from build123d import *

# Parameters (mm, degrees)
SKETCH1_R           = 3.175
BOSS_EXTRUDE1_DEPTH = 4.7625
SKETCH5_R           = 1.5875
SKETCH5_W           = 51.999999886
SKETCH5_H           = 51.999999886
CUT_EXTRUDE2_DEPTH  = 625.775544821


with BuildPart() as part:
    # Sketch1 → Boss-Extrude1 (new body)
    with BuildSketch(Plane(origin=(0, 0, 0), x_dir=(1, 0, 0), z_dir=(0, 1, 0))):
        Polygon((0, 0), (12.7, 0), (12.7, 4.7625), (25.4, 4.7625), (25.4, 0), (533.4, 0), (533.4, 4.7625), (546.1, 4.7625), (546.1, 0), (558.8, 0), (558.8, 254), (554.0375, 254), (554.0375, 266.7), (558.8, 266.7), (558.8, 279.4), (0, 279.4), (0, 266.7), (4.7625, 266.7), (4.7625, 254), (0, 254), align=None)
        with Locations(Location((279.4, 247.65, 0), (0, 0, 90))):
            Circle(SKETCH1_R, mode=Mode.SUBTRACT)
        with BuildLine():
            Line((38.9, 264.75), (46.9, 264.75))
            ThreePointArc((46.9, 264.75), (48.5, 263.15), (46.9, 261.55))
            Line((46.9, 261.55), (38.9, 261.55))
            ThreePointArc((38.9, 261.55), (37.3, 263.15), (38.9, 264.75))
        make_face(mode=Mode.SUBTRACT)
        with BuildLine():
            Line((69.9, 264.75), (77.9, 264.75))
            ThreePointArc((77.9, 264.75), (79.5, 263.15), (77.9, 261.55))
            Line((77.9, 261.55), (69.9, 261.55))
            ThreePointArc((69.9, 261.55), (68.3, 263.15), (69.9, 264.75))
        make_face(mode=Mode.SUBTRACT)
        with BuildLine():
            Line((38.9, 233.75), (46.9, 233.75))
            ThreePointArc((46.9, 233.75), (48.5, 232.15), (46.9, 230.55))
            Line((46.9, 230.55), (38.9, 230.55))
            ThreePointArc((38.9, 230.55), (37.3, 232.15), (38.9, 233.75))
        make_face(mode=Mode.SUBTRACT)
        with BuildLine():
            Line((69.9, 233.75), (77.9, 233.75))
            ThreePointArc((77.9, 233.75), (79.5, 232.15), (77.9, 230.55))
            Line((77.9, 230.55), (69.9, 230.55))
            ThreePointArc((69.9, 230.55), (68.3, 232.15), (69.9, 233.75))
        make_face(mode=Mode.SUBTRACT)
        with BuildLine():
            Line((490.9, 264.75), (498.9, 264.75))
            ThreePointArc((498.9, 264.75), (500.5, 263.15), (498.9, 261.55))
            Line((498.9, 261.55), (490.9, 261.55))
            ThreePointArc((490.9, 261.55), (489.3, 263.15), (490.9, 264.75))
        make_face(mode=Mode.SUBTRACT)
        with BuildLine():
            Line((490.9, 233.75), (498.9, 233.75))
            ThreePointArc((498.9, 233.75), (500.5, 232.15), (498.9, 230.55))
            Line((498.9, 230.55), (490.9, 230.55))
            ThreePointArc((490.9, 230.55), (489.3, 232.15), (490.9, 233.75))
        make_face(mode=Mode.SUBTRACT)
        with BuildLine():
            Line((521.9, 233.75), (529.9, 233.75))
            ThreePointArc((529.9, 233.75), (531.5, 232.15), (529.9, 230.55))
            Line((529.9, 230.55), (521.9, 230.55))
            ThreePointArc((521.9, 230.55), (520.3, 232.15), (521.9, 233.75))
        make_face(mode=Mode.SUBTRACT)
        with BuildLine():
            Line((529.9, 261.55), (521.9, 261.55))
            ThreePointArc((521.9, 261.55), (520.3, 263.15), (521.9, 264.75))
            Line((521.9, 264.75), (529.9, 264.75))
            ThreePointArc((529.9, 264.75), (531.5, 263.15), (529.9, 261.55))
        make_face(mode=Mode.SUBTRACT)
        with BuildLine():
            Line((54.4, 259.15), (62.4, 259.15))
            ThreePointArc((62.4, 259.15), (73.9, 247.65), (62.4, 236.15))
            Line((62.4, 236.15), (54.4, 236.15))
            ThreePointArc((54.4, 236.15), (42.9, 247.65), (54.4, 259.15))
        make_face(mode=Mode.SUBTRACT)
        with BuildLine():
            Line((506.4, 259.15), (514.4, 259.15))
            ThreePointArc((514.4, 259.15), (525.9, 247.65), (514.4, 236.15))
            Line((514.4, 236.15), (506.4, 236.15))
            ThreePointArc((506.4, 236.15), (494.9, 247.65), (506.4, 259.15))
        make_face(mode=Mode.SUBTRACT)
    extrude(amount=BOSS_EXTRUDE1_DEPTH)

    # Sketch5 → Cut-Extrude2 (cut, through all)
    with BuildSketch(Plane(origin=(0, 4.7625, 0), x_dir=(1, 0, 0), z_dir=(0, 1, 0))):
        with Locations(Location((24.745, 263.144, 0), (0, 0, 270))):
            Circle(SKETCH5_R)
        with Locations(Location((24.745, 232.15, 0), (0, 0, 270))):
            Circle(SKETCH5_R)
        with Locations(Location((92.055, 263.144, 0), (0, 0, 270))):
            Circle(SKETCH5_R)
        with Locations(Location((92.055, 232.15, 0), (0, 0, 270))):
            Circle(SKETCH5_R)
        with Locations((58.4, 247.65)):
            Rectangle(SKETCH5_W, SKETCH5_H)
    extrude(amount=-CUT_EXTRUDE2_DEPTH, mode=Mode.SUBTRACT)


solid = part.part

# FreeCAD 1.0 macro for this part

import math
import FreeCAD as App
import Part
import Sketcher

V = App.Vector
Q = App.Units.Quantity


def add_polygon(sketch, points):
    """Adds a closed chain of lines whose ends are joined by coincident constraints."""
    first, n = sketch.GeometryCount, len(points)
    for a, b in zip(points, points[1:] + points[:1]):
        sketch.addGeometry(Part.LineSegment(App.Vector(*a, 0), App.Vector(*b, 0)), False)
    for i in range(n):
        sketch.addConstraint(Sketcher.Constraint("Coincident", first + i, 2, first + (i + 1) % n, 1))

doc = App.newDocument("Part")
body = doc.addObject("PartDesign::Body", "Body")

# Sketch on XZ plane
sketch1 = doc.addObject("Sketcher::SketchObject", "Sketch")
body.addObject(sketch1)
sketch1.AttachmentSupport = (doc.XZ_Plane, [""])
sketch1.MapMode = "FlatFace"
add_polygon(sketch1, [(0, 0), (12.7, 0), (12.7, -4.7625), (25.4, -4.7625), (25.4, 0), (533.4, 0), (533.4, -4.7625), (546.1, -4.7625), (546.1, 0), (558.8, 0), (558.8, -254), (554.0375, -254), (554.0375, -266.7), (558.8, -266.7), (558.8, -279.4), (0, -279.4), (0, -266.7), (4.7625, -266.7), (4.7625, -254), (0, -254)])  # lines 0-19
sketch1.addGeometry(Part.ArcOfCircle(Part.Circle(V(38.9, -232.15, 0), V(0, 0, 1), 1.6), math.radians(90), math.radians(270)), False)  # 20
sketch1.addGeometry(Part.LineSegment(V(38.9, -233.75, 0), V(46.9, -233.75, 0)), False)  # 21
sketch1.addGeometry(Part.ArcOfCircle(Part.Circle(V(46.9, -232.15, 0), V(0, 0, 1), 1.6), math.radians(-90), math.radians(90)), False)  # 22
sketch1.addGeometry(Part.LineSegment(V(46.9, -230.55, 0), V(38.9, -230.55, 0)), False)  # 23
sketch1.addGeometry(Part.ArcOfCircle(Part.Circle(V(69.9, -232.15, 0), V(0, 0, 1), 1.6), math.radians(90), math.radians(270)), False)  # 24
sketch1.addGeometry(Part.LineSegment(V(69.9, -233.75, 0), V(77.9, -233.75, 0)), False)  # 25
sketch1.addGeometry(Part.ArcOfCircle(Part.Circle(V(77.9, -232.15, 0), V(0, 0, 1), 1.6), math.radians(-90), math.radians(90)), False)  # 26
sketch1.addGeometry(Part.LineSegment(V(77.9, -230.55, 0), V(69.9, -230.55, 0)), False)  # 27
sketch1.addGeometry(Part.ArcOfCircle(Part.Circle(V(54.4, -247.65, 0), V(0, 0, 1), 11.5), math.radians(90), math.radians(270)), False)  # 28
sketch1.addGeometry(Part.LineSegment(V(54.4, -259.15, 0), V(62.4, -259.15, 0)), False)  # 29
sketch1.addGeometry(Part.ArcOfCircle(Part.Circle(V(62.4, -247.65, 0), V(0, 0, 1), 11.5), math.radians(-90), math.radians(90)), False)  # 30
sketch1.addGeometry(Part.LineSegment(V(62.4, -236.15, 0), V(54.4, -236.15, 0)), False)  # 31
sketch1.addGeometry(Part.Circle(V(279.4, -247.65, 0), V(0, 0, 1), 3.175), False)  # 32
sketch1.addGeometry(Part.ArcOfCircle(Part.Circle(V(490.9, -232.15, 0), V(0, 0, 1), 1.6), math.radians(90), math.radians(270)), False)  # 33
sketch1.addGeometry(Part.LineSegment(V(490.9, -233.75, 0), V(498.9, -233.75, 0)), False)  # 34
sketch1.addGeometry(Part.ArcOfCircle(Part.Circle(V(498.9, -232.15, 0), V(0, 0, 1), 1.6), math.radians(-90), math.radians(90)), False)  # 35
sketch1.addGeometry(Part.LineSegment(V(498.9, -230.55, 0), V(490.9, -230.55, 0)), False)  # 36
sketch1.addGeometry(Part.ArcOfCircle(Part.Circle(V(521.9, -232.15, 0), V(0, 0, 1), 1.6), math.radians(90), math.radians(270)), False)  # 37
sketch1.addGeometry(Part.LineSegment(V(521.9, -233.75, 0), V(529.9, -233.75, 0)), False)  # 38
sketch1.addGeometry(Part.ArcOfCircle(Part.Circle(V(529.9, -232.15, 0), V(0, 0, 1), 1.6), math.radians(-90), math.radians(90)), False)  # 39
sketch1.addGeometry(Part.LineSegment(V(529.9, -230.55, 0), V(521.9, -230.55, 0)), False)  # 40
sketch1.addGeometry(Part.ArcOfCircle(Part.Circle(V(506.4, -247.65, 0), V(0, 0, 1), 11.5), math.radians(90), math.radians(270)), False)  # 41
sketch1.addGeometry(Part.LineSegment(V(506.4, -259.15, 0), V(514.4, -259.15, 0)), False)  # 42
sketch1.addGeometry(Part.ArcOfCircle(Part.Circle(V(514.4, -247.65, 0), V(0, 0, 1), 11.5), math.radians(-90), math.radians(90)), False)  # 43
sketch1.addGeometry(Part.LineSegment(V(514.4, -236.15, 0), V(506.4, -236.15, 0)), False)  # 44
sketch1.addGeometry(Part.ArcOfCircle(Part.Circle(V(38.9, -263.15, 0), V(0, 0, 1), 1.6), math.radians(90), math.radians(270)), False)  # 45
sketch1.addGeometry(Part.LineSegment(V(38.9, -264.75, 0), V(46.9, -264.75, 0)), False)  # 46
sketch1.addGeometry(Part.ArcOfCircle(Part.Circle(V(46.9, -263.15, 0), V(0, 0, 1), 1.6), math.radians(-90), math.radians(90)), False)  # 47
sketch1.addGeometry(Part.LineSegment(V(46.9, -261.55, 0), V(38.9, -261.55, 0)), False)  # 48
sketch1.addGeometry(Part.ArcOfCircle(Part.Circle(V(69.9, -263.15, 0), V(0, 0, 1), 1.6), math.radians(90), math.radians(270)), False)  # 49
sketch1.addGeometry(Part.LineSegment(V(69.9, -264.75, 0), V(77.9, -264.75, 0)), False)  # 50
sketch1.addGeometry(Part.ArcOfCircle(Part.Circle(V(77.9, -263.15, 0), V(0, 0, 1), 1.6), math.radians(-90), math.radians(90)), False)  # 51
sketch1.addGeometry(Part.LineSegment(V(77.9, -261.55, 0), V(69.9, -261.55, 0)), False)  # 52
sketch1.addGeometry(Part.ArcOfCircle(Part.Circle(V(490.9, -263.15, 0), V(0, 0, 1), 1.6), math.radians(90), math.radians(270)), False)  # 53
sketch1.addGeometry(Part.LineSegment(V(490.9, -264.75, 0), V(498.9, -264.75, 0)), False)  # 54
sketch1.addGeometry(Part.ArcOfCircle(Part.Circle(V(498.9, -263.15, 0), V(0, 0, 1), 1.6), math.radians(-90), math.radians(90)), False)  # 55
sketch1.addGeometry(Part.LineSegment(V(498.9, -261.55, 0), V(490.9, -261.55, 0)), False)  # 56
sketch1.addGeometry(Part.ArcOfCircle(Part.Circle(V(529.9, -263.15, 0), V(0, 0, 1), 1.6), math.radians(-90), math.radians(90)), False)  # 57
sketch1.addGeometry(Part.LineSegment(V(529.9, -261.55, 0), V(521.9, -261.55, 0)), False)  # 58
sketch1.addGeometry(Part.ArcOfCircle(Part.Circle(V(521.9, -263.15, 0), V(0, 0, 1), 1.6), math.radians(90), math.radians(270)), False)  # 59
sketch1.addGeometry(Part.LineSegment(V(521.9, -264.75, 0), V(529.9, -264.75, 0)), False)  # 60
sketch1.addConstraint(Sketcher.Constraint("Tangent", 20, 2, 21, 1))
sketch1.addConstraint(Sketcher.Constraint("Tangent", 21, 2, 22, 1))
sketch1.addConstraint(Sketcher.Constraint("Tangent", 22, 2, 23, 1))
sketch1.addConstraint(Sketcher.Constraint("Tangent", 23, 2, 20, 1))
sketch1.addConstraint(Sketcher.Constraint("Tangent", 24, 2, 25, 1))
sketch1.addConstraint(Sketcher.Constraint("Tangent", 25, 2, 26, 1))
sketch1.addConstraint(Sketcher.Constraint("Tangent", 26, 2, 27, 1))
sketch1.addConstraint(Sketcher.Constraint("Tangent", 27, 2, 24, 1))
sketch1.addConstraint(Sketcher.Constraint("Tangent", 28, 2, 29, 1))
sketch1.addConstraint(Sketcher.Constraint("Tangent", 29, 2, 30, 1))
sketch1.addConstraint(Sketcher.Constraint("Tangent", 30, 2, 31, 1))
sketch1.addConstraint(Sketcher.Constraint("Tangent", 31, 2, 28, 1))
sketch1.addConstraint(Sketcher.Constraint("Tangent", 33, 2, 34, 1))
sketch1.addConstraint(Sketcher.Constraint("Tangent", 34, 2, 35, 1))
sketch1.addConstraint(Sketcher.Constraint("Tangent", 35, 2, 36, 1))
sketch1.addConstraint(Sketcher.Constraint("Tangent", 36, 2, 33, 1))
sketch1.addConstraint(Sketcher.Constraint("Tangent", 37, 2, 38, 1))
sketch1.addConstraint(Sketcher.Constraint("Tangent", 38, 2, 39, 1))
sketch1.addConstraint(Sketcher.Constraint("Tangent", 39, 2, 40, 1))
sketch1.addConstraint(Sketcher.Constraint("Tangent", 40, 2, 37, 1))
sketch1.addConstraint(Sketcher.Constraint("Tangent", 41, 2, 42, 1))
sketch1.addConstraint(Sketcher.Constraint("Tangent", 42, 2, 43, 1))
sketch1.addConstraint(Sketcher.Constraint("Tangent", 43, 2, 44, 1))
sketch1.addConstraint(Sketcher.Constraint("Tangent", 44, 2, 41, 1))
sketch1.addConstraint(Sketcher.Constraint("Tangent", 45, 2, 46, 1))
sketch1.addConstraint(Sketcher.Constraint("Tangent", 46, 2, 47, 1))
sketch1.addConstraint(Sketcher.Constraint("Tangent", 47, 2, 48, 1))
sketch1.addConstraint(Sketcher.Constraint("Tangent", 48, 2, 45, 1))
sketch1.addConstraint(Sketcher.Constraint("Tangent", 49, 2, 50, 1))
sketch1.addConstraint(Sketcher.Constraint("Tangent", 50, 2, 51, 1))
sketch1.addConstraint(Sketcher.Constraint("Tangent", 51, 2, 52, 1))
sketch1.addConstraint(Sketcher.Constraint("Tangent", 52, 2, 49, 1))
sketch1.addConstraint(Sketcher.Constraint("Tangent", 53, 2, 54, 1))
sketch1.addConstraint(Sketcher.Constraint("Tangent", 54, 2, 55, 1))
sketch1.addConstraint(Sketcher.Constraint("Tangent", 55, 2, 56, 1))
sketch1.addConstraint(Sketcher.Constraint("Tangent", 56, 2, 53, 1))
sketch1.addConstraint(Sketcher.Constraint("Tangent", 57, 2, 58, 1))
sketch1.addConstraint(Sketcher.Constraint("Tangent", 58, 2, 59, 1))
sketch1.addConstraint(Sketcher.Constraint("Tangent", 59, 2, 60, 1))
sketch1.addConstraint(Sketcher.Constraint("Tangent", 60, 2, 57, 1))
sketch1.addConstraint(Sketcher.Constraint("Horizontal", 0))
sketch1.addConstraint(Sketcher.Constraint("Vertical", 1))
sketch1.addConstraint(Sketcher.Constraint("Horizontal", 2))
sketch1.addConstraint(Sketcher.Constraint("Vertical", 3))
sketch1.addConstraint(Sketcher.Constraint("Horizontal", 4))
sketch1.addConstraint(Sketcher.Constraint("Vertical", 5))
sketch1.addConstraint(Sketcher.Constraint("Horizontal", 6))
sketch1.addConstraint(Sketcher.Constraint("Vertical", 7))
sketch1.addConstraint(Sketcher.Constraint("Horizontal", 8))
sketch1.addConstraint(Sketcher.Constraint("Vertical", 9))
sketch1.addConstraint(Sketcher.Constraint("Horizontal", 10))
sketch1.addConstraint(Sketcher.Constraint("Vertical", 11))
sketch1.addConstraint(Sketcher.Constraint("Horizontal", 12))
sketch1.addConstraint(Sketcher.Constraint("Vertical", 13))
sketch1.addConstraint(Sketcher.Constraint("Horizontal", 14))
sketch1.addConstraint(Sketcher.Constraint("Vertical", 15))
sketch1.addConstraint(Sketcher.Constraint("Horizontal", 16))
sketch1.addConstraint(Sketcher.Constraint("Vertical", 17))
sketch1.addConstraint(Sketcher.Constraint("Horizontal", 18))
sketch1.addConstraint(Sketcher.Constraint("Vertical", 19))
sketch1.addConstraint(Sketcher.Constraint("Horizontal", 21))
sketch1.addConstraint(Sketcher.Constraint("Horizontal", 23))
sketch1.addConstraint(Sketcher.Constraint("Horizontal", 25))
sketch1.addConstraint(Sketcher.Constraint("Horizontal", 27))
sketch1.addConstraint(Sketcher.Constraint("Horizontal", 29))
sketch1.addConstraint(Sketcher.Constraint("Horizontal", 31))
sketch1.addConstraint(Sketcher.Constraint("Horizontal", 34))
sketch1.addConstraint(Sketcher.Constraint("Horizontal", 36))
sketch1.addConstraint(Sketcher.Constraint("Horizontal", 38))
sketch1.addConstraint(Sketcher.Constraint("Horizontal", 40))
sketch1.addConstraint(Sketcher.Constraint("Horizontal", 42))
sketch1.addConstraint(Sketcher.Constraint("Horizontal", 44))
sketch1.addConstraint(Sketcher.Constraint("Horizontal", 46))
sketch1.addConstraint(Sketcher.Constraint("Horizontal", 48))
sketch1.addConstraint(Sketcher.Constraint("Horizontal", 50))
sketch1.addConstraint(Sketcher.Constraint("Horizontal", 52))
sketch1.addConstraint(Sketcher.Constraint("Horizontal", 54))
sketch1.addConstraint(Sketcher.Constraint("Horizontal", 56))
sketch1.addConstraint(Sketcher.Constraint("Horizontal", 58))
sketch1.addConstraint(Sketcher.Constraint("Horizontal", 60))
sketch1.addConstraint(Sketcher.Constraint("Coincident", 19, 2, -1, 1))
sketch1.addConstraint(Sketcher.Constraint("Equal", 22, 24))
sketch1.addConstraint(Sketcher.Constraint("Equal", 26, 33))
sketch1.addConstraint(Sketcher.Constraint("Equal", 35, 37))
sketch1.addConstraint(Sketcher.Constraint("Equal", 30, 41))
sketch1.addConstraint(Sketcher.Constraint("Equal", 39, 45))
sketch1.addConstraint(Sketcher.Constraint("Equal", 47, 49))
sketch1.addConstraint(Sketcher.Constraint("Equal", 51, 53))
sketch1.addConstraint(Sketcher.Constraint("Equal", 55, 57))
sketch1.addConstraint(Sketcher.Constraint("PointOnObject", 3, 2, -1))
sketch1.addConstraint(Sketcher.Constraint("PointOnObject", 7, 2, -1))
sketch1.addConstraint(Sketcher.Constraint("PointOnObject", 14, 2, -2))
sketch1.addConstraint(Sketcher.Constraint("Horizontal", 22, 3, 24, 3))
sketch1.addConstraint(Sketcher.Constraint("Horizontal", 30, 3, 32, 3))
sketch1.addConstraint(Sketcher.Constraint("Horizontal", 26, 3, 33, 3))
sketch1.addConstraint(Sketcher.Constraint("Horizontal", 35, 3, 37, 3))
sketch1.addConstraint(Sketcher.Constraint("Horizontal", 32, 3, 41, 3))
sketch1.addConstraint(Sketcher.Constraint("Horizontal", 47, 3, 49, 3))
sketch1.addConstraint(Sketcher.Constraint("Horizontal", 51, 3, 53, 3))
sketch1.addConstraint(Sketcher.Constraint("Horizontal", 55, 3, 57, 3))
sketch1.addConstraint(Sketcher.Constraint("Horizontal", 2, 2, 5, 2))
sketch1.addConstraint(Sketcher.Constraint("Horizontal", 12, 2, 15, 2))
sketch1.addConstraint(Sketcher.Constraint("Horizontal", 10, 2, 17, 2))
sketch1.addConstraint(Sketcher.Constraint("Vertical", 20, 3, 45, 3))
sketch1.addConstraint(Sketcher.Constraint("Vertical", 22, 3, 47, 3))
sketch1.addConstraint(Sketcher.Constraint("Vertical", 24, 3, 49, 3))
sketch1.addConstraint(Sketcher.Constraint("Vertical", 26, 3, 51, 3))
sketch1.addConstraint(Sketcher.Constraint("Vertical", 33, 3, 53, 3))
sketch1.addConstraint(Sketcher.Constraint("Vertical", 35, 3, 55, 3))
sketch1.addConstraint(Sketcher.Constraint("Vertical", 39, 3, 57, 3))
sketch1.addConstraint(Sketcher.Constraint("Vertical", 37, 3, 59, 3))
sketch1.addConstraint(Sketcher.Constraint("Vertical", 9, 2, 12, 2))
sketch1.addConstraint(Sketcher.Constraint("Equal", 0, 2))
sketch1.addConstraint(Sketcher.Constraint("Equal", 2, 6))
sketch1.addConstraint(Sketcher.Constraint("Equal", 6, 8))
sketch1.addConstraint(Sketcher.Constraint("Equal", 12, 16))
sketch1.addConstraint(Sketcher.Constraint("Equal", 23, 25))
sketch1.addConstraint(Sketcher.Constraint("Equal", 27, 29))
sketch1.addConstraint(Sketcher.Constraint("Equal", 31, 34))
sketch1.addConstraint(Sketcher.Constraint("Equal", 36, 38))
sketch1.addConstraint(Sketcher.Constraint("Equal", 40, 42))
sketch1.addConstraint(Sketcher.Constraint("Equal", 18, 1))
sketch1.addConstraint(Sketcher.Constraint("Equal", 8, 11))
sketch1.addConstraint(Sketcher.Constraint("Equal", 11, 13))
sketch1.addConstraint(Sketcher.Constraint("Diameter", 32, Q("0.25 in")))
sketch1.addConstraint(Sketcher.Constraint("DistanceX", 4, 1, 4, 2, Q("20 in")))
sketch1.addConstraint(Sketcher.Constraint("DistanceX", 14, 2, 14, 1, Q("22 in")))
sketch1.addConstraint(Sketcher.Constraint("DistanceY", 9, 2, 9, 1, Q("10 in")))
sketch1.addConstraint(Sketcher.Constraint("DistanceX", -1, 1, 32, 3, Q("11 in")))
sketch1.addConstraint(Sketcher.Constraint("DistanceX", 10, 2, 10, 1, Q("0.1875 in")))
sketch1.addConstraint(Sketcher.Constraint("DistanceY", 28, 3, -1, 1, Q("9.75 in")))
sketch1.addConstraint(Sketcher.Constraint("Radius", 20, Q("1.6 mm")))
sketch1.addConstraint(Sketcher.Constraint("Radius", 28, Q("11.5 mm")))
sketch1.addConstraint(Sketcher.Constraint("DistanceX", 21, 1, 21, 2, Q("8 mm")))
sketch1.addConstraint(Sketcher.Constraint("DistanceX", -1, 1, 20, 3, Q("38.9 mm")))
sketch1.addConstraint(Sketcher.Constraint("DistanceY", 20, 3, -1, 1, Q("232.15 mm")))
sketch1.addConstraint(Sketcher.Constraint("DistanceX", -1, 1, 24, 3, Q("69.9 mm")))
sketch1.addConstraint(Sketcher.Constraint("DistanceX", -1, 1, 28, 3, Q("54.4 mm")))
sketch1.addConstraint(Sketcher.Constraint("DistanceX", -1, 1, 33, 3, Q("490.9 mm")))
sketch1.addConstraint(Sketcher.Constraint("DistanceX", -1, 1, 37, 3, Q("521.9 mm")))
sketch1.addConstraint(Sketcher.Constraint("DistanceX", -1, 1, 41, 3, Q("506.4 mm")))
sketch1.addConstraint(Sketcher.Constraint("DistanceY", 45, 3, -1, 1, Q("263.15 mm")))
pad1 = doc.addObject("PartDesign::Pad", "Pad")
body.addObject(pad1)
pad1.Profile = sketch1
pad1.Length = Q("0.1875 in")
pad1.Reversed = True

# Sketch on XZ plane
sketch2 = doc.addObject("Sketcher::SketchObject", "Sketch001")
body.addObject(sketch2)
sketch2.AttachmentSupport = (doc.XZ_Plane, [""])
sketch2.MapMode = "FlatFace"
sketch2.AttachmentOffset = App.Placement(V(0, 0, -0.1875 * 25.4), App.Rotation())
sketch2.addGeometry(Part.Circle(V(24.745, -263.144, 0), V(0, 0, 1), 1.5875), False)  # 0
sketch2.addGeometry(Part.Circle(V(24.745, -232.15, 0), V(0, 0, 1), 1.5875), False)  # 1
sketch2.addGeometry(Part.Circle(V(92.055, -263.144, 0), V(0, 0, 1), 1.5875), False)  # 2
sketch2.addGeometry(Part.Circle(V(92.055, -232.15, 0), V(0, 0, 1), 1.5875), False)  # 3
add_polygon(sketch2, [(32.4, -273.65), (32.4, -221.65), (84.4, -221.65), (84.4, -273.65)])  # lines 4-7
sketch2.addConstraint(Sketcher.Constraint("Vertical", 4))
sketch2.addConstraint(Sketcher.Constraint("Horizontal", 5))
sketch2.addConstraint(Sketcher.Constraint("Vertical", 6))
sketch2.addConstraint(Sketcher.Constraint("Horizontal", 7))
sketch2.addConstraint(Sketcher.Constraint("Equal", 0, 1))
sketch2.addConstraint(Sketcher.Constraint("Equal", 1, 2))
sketch2.addConstraint(Sketcher.Constraint("Equal", 2, 3))
sketch2.addConstraint(Sketcher.Constraint("Horizontal", 0, 3, 2, 3))
sketch2.addConstraint(Sketcher.Constraint("Horizontal", 1, 3, 3, 3))
sketch2.addConstraint(Sketcher.Constraint("Vertical", 0, 3, 1, 3))
sketch2.addConstraint(Sketcher.Constraint("Vertical", 2, 3, 3, 3))
sketch2.addConstraint(Sketcher.Constraint("Equal", 7, 4))
sketch2.addConstraint(Sketcher.Constraint("Diameter", 0, Q("0.125 in")))
sketch2.addConstraint(Sketcher.Constraint("DistanceY", 0, 3, -1, 1, Q("10.36 in")))
sketch2.addConstraint(Sketcher.Constraint("DistanceX", 0, 3, 2, 3, Q("2.65 in")))
sketch2.addConstraint(Sketcher.Constraint("DistanceX", 5, 1, 5, 2, Q("52 mm")))
sketch2.addConstraint(Sketcher.Constraint("DistanceX", -1, 1, 0, 3, Q("24.745 mm")))
sketch2.addConstraint(Sketcher.Constraint("DistanceY", 1, 3, -1, 1, Q("232.15 mm")))
sketch2.addConstraint(Sketcher.Constraint("DistanceX", -1, 1, 4, 2, Q("32.4 mm")))
sketch2.addConstraint(Sketcher.Constraint("DistanceY", 4, 2, -1, 1, Q("221.65 mm")))
pocket1 = doc.addObject("PartDesign::Pocket", "Pocket")
body.addObject(pocket1)
pocket1.Profile = sketch2
pocket1.Type = "ThroughAll"
pocket1.Reversed = True

doc.recompute()
